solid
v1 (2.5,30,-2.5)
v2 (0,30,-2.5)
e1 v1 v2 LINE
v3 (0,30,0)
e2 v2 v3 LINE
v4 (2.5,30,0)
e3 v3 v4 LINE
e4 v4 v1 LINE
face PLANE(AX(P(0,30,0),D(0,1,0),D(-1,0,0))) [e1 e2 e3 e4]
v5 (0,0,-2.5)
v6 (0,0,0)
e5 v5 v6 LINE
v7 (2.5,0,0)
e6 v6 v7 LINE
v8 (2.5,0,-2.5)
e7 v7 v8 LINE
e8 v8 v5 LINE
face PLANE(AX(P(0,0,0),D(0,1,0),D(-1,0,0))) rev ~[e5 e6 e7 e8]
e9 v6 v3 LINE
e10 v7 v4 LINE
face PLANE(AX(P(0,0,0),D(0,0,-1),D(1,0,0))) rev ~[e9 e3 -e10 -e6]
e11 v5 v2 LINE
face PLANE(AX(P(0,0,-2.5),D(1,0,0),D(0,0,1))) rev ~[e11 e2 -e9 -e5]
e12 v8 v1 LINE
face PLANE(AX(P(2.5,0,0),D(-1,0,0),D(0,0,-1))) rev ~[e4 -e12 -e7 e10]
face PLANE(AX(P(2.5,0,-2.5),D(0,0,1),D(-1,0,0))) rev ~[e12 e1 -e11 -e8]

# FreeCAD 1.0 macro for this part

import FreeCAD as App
import Part
import Sketcher


def add_polygon(sketch, points):
    """Adds a closed chain of lines whose ends are joined by coincident constraints."""
    first, n = sketch.GeometryCount, len(points)
    for a, b in zip(points, points[1:] + points[:1]):
        sketch.addGeometry(Part.LineSegment(App.Vector(*a, 0), App.Vector(*b, 0)), False)
    for i in range(n):
        sketch.addConstraint(Sketcher.Constraint("Coincident", first + i, 2, first + (i + 1) % n, 1))

doc = App.newDocument("Part")
params = doc.addObject("Spreadsheet::Sheet", "Params")
for row, (alias, value) in enumerate([
    ("sketch1_width", "2.5 mm"),
    ("pad1_length", "30 mm"),
], start=1):
    params.set(f"A{row}", alias)
    params.set(f"B{row}", "=" + value)
    params.setAlias(f"B{row}", alias)

body = doc.addObject("PartDesign::Body", "Body")

# Sketch on XZ plane
sketch1 = doc.addObject("Sketcher::SketchObject", "Sketch")
body.addObject(sketch1)
sketch1.AttachmentSupport = (doc.XZ_Plane, [""])
sketch1.MapMode = "FlatFace"
add_polygon(sketch1, [(0, -2.5), (0, 0), (2.5, 0), (2.5, -2.5)])  # lines 0-3
sketch1.addConstraint(Sketcher.Constraint("Vertical", 0))
sketch1.addConstraint(Sketcher.Constraint("Horizontal", 1))
sketch1.addConstraint(Sketcher.Constraint("Vertical", 2))
sketch1.addConstraint(Sketcher.Constraint("Horizontal", 3))
sketch1.addConstraint(Sketcher.Constraint("Coincident", 0, 2, -1, 1))
sketch1.addConstraint(Sketcher.Constraint("Equal", 3, 0))
sketch1.addConstraint(Sketcher.Constraint("DistanceX", 1, 1, 1, 2, 2.5))
sketch1.setExpression("Constraints[10]", "Params.sketch1_width")
pad1 = doc.addObject("PartDesign::Pad", "Pad")
body.addObject(pad1)
pad1.Profile = sketch1
pad1.setExpression("Length", "Params.pad1_length")
pad1.Reversed = True

doc.recompute()
